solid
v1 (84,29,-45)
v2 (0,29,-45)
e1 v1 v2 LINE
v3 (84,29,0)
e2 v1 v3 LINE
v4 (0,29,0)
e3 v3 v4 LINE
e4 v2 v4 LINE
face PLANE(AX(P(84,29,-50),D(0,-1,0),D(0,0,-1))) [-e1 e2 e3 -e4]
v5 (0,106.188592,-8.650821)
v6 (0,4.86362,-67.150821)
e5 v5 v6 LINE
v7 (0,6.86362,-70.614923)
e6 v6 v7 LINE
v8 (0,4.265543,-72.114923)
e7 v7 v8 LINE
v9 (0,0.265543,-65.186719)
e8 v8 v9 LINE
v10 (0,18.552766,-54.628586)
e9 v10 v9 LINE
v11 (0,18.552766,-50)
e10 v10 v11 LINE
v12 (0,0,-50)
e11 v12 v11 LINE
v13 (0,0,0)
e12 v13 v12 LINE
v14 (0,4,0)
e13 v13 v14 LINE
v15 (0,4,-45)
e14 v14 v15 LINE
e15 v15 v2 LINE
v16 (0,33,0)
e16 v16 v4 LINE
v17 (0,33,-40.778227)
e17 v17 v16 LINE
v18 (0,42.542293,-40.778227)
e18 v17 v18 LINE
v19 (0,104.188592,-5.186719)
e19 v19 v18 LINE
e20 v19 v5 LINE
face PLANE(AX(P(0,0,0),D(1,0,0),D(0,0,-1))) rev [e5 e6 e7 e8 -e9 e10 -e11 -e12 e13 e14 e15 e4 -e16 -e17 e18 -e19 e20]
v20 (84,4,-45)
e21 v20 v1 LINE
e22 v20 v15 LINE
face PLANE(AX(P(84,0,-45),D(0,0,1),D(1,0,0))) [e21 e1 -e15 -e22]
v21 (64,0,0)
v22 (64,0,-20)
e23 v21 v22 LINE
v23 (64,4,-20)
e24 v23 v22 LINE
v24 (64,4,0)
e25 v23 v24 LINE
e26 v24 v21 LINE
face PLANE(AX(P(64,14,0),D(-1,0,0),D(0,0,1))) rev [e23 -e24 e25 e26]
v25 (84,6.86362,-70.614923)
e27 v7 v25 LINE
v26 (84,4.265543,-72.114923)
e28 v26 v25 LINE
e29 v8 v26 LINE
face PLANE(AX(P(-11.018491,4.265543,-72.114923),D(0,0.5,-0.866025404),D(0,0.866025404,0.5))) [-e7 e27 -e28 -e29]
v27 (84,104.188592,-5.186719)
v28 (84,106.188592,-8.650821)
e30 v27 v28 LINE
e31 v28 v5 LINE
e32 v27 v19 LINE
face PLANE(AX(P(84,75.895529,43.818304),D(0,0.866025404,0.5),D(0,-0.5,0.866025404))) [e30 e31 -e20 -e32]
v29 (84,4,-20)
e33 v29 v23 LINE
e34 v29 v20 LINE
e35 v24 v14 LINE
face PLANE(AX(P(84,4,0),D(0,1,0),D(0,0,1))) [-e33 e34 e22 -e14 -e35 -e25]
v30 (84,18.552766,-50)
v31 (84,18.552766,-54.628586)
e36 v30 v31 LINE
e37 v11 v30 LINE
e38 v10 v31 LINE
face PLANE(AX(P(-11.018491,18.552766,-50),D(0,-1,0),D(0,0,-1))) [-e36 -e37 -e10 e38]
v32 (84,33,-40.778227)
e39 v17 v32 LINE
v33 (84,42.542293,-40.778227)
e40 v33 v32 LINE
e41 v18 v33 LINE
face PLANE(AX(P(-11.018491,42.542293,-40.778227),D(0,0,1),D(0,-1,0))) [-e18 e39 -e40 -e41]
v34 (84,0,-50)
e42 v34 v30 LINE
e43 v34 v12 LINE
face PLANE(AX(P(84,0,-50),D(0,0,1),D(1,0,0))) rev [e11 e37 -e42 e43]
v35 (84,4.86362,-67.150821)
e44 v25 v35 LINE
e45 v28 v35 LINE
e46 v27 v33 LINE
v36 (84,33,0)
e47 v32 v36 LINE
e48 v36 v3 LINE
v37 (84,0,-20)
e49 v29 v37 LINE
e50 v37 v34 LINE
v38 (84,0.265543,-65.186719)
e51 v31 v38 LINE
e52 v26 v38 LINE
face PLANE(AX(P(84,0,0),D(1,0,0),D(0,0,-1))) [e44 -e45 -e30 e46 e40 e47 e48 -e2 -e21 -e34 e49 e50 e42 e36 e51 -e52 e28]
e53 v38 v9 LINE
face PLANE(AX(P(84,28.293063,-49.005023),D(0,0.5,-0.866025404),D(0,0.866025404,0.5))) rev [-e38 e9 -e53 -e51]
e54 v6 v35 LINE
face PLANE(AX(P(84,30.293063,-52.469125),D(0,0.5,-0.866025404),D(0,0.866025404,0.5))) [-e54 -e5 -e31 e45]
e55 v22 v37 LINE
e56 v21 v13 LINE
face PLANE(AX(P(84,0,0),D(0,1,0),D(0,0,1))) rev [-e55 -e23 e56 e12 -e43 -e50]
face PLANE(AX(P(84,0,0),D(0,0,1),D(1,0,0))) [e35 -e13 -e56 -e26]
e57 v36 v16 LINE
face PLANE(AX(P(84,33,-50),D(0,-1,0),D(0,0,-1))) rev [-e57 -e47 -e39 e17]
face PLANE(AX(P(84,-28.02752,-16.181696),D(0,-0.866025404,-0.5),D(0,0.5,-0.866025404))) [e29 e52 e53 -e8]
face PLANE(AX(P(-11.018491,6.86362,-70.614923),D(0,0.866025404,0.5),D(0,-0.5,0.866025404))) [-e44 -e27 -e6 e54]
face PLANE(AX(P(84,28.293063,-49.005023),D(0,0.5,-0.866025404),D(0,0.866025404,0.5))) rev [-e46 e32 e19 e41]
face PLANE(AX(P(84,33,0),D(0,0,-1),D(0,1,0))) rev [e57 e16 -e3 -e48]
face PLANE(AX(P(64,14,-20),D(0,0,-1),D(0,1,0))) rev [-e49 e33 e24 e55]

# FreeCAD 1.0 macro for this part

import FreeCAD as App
import Part
import Sketcher
Q = App.Units.Quantity

doc = App.newDocument("Part")
body = doc.addObject("PartDesign::Body", "Body")

sketch1 = doc.addObject("Sketcher::SketchObject", "Sketch")
body.addObject(sketch1)
sketch1.AttachmentSupport = (doc.YZ_Plane, [""])
sketch1.MapMode = "FlatFace"
sketch1.addGeometry(Part.LineSegment(App.Vector(104.188592, -5.186719, 0), App.Vector(33, -46.287472, 0)), False)
sketch1.addGeometry(Part.LineSegment(App.Vector(33, -46.287472, 0), App.Vector(33, 0, 0)), False)
sketch1.addGeometry(Part.LineSegment(App.Vector(33, 0, 0), App.Vector(29, 0, 0)), False)
sketch1.addGeometry(Part.LineSegment(App.Vector(29, 0, 0), App.Vector(29, -45, 0)), False)
sketch1.addGeometry(Part.LineSegment(App.Vector(29, -45, 0), App.Vector(4, -45, 0)), False)
sketch1.addGeometry(Part.LineSegment(App.Vector(4, -45, 0), App.Vector(4, 0, 0)), False)
sketch1.addGeometry(Part.LineSegment(App.Vector(4, 0, 0), App.Vector(0, 0, 0)), False)
sketch1.addGeometry(Part.LineSegment(App.Vector(0, 0, 0), App.Vector(0, -50, 0)), False)
sketch1.addGeometry(Part.LineSegment(App.Vector(0, -50, 0), App.Vector(26.569713, -50, 0)), False)
sketch1.addGeometry(Part.LineSegment(App.Vector(26.569713, -50, 0), App.Vector(0.265543, -65.186719, 0)), False)
sketch1.addGeometry(Part.LineSegment(App.Vector(0.265543, -65.186719, 0), App.Vector(2.265543, -68.650821, 0)), False)
sketch1.addGeometry(Part.LineSegment(App.Vector(2.265543, -68.650821, 0), App.Vector(106.188592, -8.650821, 0)), False)
sketch1.addGeometry(Part.LineSegment(App.Vector(106.188592, -8.650821, 0), App.Vector(104.188592, -5.186719, 0)), False)
sketch1.addConstraint(Sketcher.Constraint("Coincident", 0, 2, 1, 1))
sketch1.addConstraint(Sketcher.Constraint("Coincident", 1, 2, 2, 1))
sketch1.addConstraint(Sketcher.Constraint("Coincident", 2, 2, 3, 1))
sketch1.addConstraint(Sketcher.Constraint("Coincident", 3, 2, 4, 1))
sketch1.addConstraint(Sketcher.Constraint("Coincident", 4, 2, 5, 1))
sketch1.addConstraint(Sketcher.Constraint("Coincident", 5, 2, 6, 1))
sketch1.addConstraint(Sketcher.Constraint("Coincident", 6, 2, 7, 1))
sketch1.addConstraint(Sketcher.Constraint("Coincident", 7, 2, 8, 1))
sketch1.addConstraint(Sketcher.Constraint("Coincident", 8, 2, 9, 1))
sketch1.addConstraint(Sketcher.Constraint("Coincident", 9, 2, 10, 1))
sketch1.addConstraint(Sketcher.Constraint("Coincident", 10, 2, 11, 1))
sketch1.addConstraint(Sketcher.Constraint("Coincident", 11, 2, 12, 1))
sketch1.addConstraint(Sketcher.Constraint("Coincident", 12, 2, 0, 1))
sketch1.addConstraint(Sketcher.Constraint("Vertical", 1))
sketch1.addConstraint(Sketcher.Constraint("Horizontal", 2))
sketch1.addConstraint(Sketcher.Constraint("Vertical", 3))
sketch1.addConstraint(Sketcher.Constraint("Horizontal", 4))
sketch1.addConstraint(Sketcher.Constraint("Vertical", 5))
sketch1.addConstraint(Sketcher.Constraint("Horizontal", 6))
sketch1.addConstraint(Sketcher.Constraint("Vertical", 7))
sketch1.addConstraint(Sketcher.Constraint("Horizontal", 8))
sketch1.addConstraint(Sketcher.Constraint("Coincident", 6, 2, -1, 1))
sketch1.addConstraint(Sketcher.Constraint("PointOnObject", 1, 2, -1))
sketch1.addConstraint(Sketcher.Constraint("Parallel", 0, 9))
sketch1.addConstraint(Sketcher.Constraint("Perpendicular", 9, 10))
sketch1.addConstraint(Sketcher.Constraint("Perpendicular", 10, 11))
sketch1.addConstraint(Sketcher.Constraint("Perpendicular", 11, 12))
sketch1.addConstraint(Sketcher.Constraint("Equal", 2, 6))
sketch1.addConstraint(Sketcher.Constraint("Equal", 10, 12))
sketch1.addConstraint(Sketcher.Constraint("DistanceX", 2, 2, 2, 1, 4.0))
sketch1.addConstraint(Sketcher.Constraint("DistanceX", 4, 2, 4, 1, 25.0))
sketch1.addConstraint(Sketcher.Constraint("DistanceY", 3, 2, 3, 1, 45.0))
sketch1.addConstraint(Sketcher.Constraint("DistanceY", 7, 2, 7, 1, 50.0))
sketch1.addConstraint(Sketcher.Constraint("Angle", 0, Q("-150 deg")))
sketch1.addConstraint(Sketcher.Constraint("Distance", 10, 4.0))
sketch1.addConstraint(Sketcher.Constraint("Distance", 11, 120.0))
sketch1.addConstraint(Sketcher.Constraint("DistanceY", 1, 1, 1, 2, 46.287472))
sketch1.addConstraint(Sketcher.Constraint("Distance", 9, 30.373439))
pad1 = doc.addObject("PartDesign::Pad", "Pad")
body.addObject(pad1)
pad1.Profile = sketch1
pad1.Length = 84

sketch2 = doc.addObject("Sketcher::SketchObject", "Sketch001")
body.addObject(sketch2)
sketch2.AttachmentSupport = (doc.XZ_Plane, [""])
sketch2.MapMode = "FlatFace"
sketch2.addGeometry(Part.LineSegment(App.Vector(64, 0, 0), App.Vector(64, -20, 0)), False)
sketch2.addGeometry(Part.LineSegment(App.Vector(64, -20, 0), App.Vector(84, -20, 0)), False)
sketch2.addGeometry(Part.LineSegment(App.Vector(84, -20, 0), App.Vector(84, 0, 0)), False)
sketch2.addGeometry(Part.LineSegment(App.Vector(84, 0, 0), App.Vector(64, 0, 0)), False)
sketch2.addConstraint(Sketcher.Constraint("Coincident", 0, 2, 1, 1))
sketch2.addConstraint(Sketcher.Constraint("Coincident", 1, 2, 2, 1))
sketch2.addConstraint(Sketcher.Constraint("Coincident", 2, 2, 3, 1))
sketch2.addConstraint(Sketcher.Constraint("Coincident", 3, 2, 0, 1))
sketch2.addConstraint(Sketcher.Constraint("Vertical", 0))
sketch2.addConstraint(Sketcher.Constraint("Horizontal", 1))
sketch2.addConstraint(Sketcher.Constraint("Vertical", 2))
sketch2.addConstraint(Sketcher.Constraint("Horizontal", 3))
sketch2.addConstraint(Sketcher.Constraint("PointOnObject", 2, 2, -1))
sketch2.addConstraint(Sketcher.Constraint("Equal", 3, 0))
sketch2.addConstraint(Sketcher.Constraint("DistanceX", 1, 1, 1, 2, 20.0))
sketch2.addConstraint(Sketcher.Constraint("DistanceX", -1, 1, 0, 2, 64.0))
pocket1 = doc.addObject("PartDesign::Pocket", "Pocket")
body.addObject(pocket1)
pocket1.Profile = sketch2
pocket1.Length = 14

sketch3 = doc.addObject("Sketcher::SketchObject", "Sketch002")
body.addObject(sketch3)
sketch3.AttachmentSupport = (doc.YZ_Plane, [""])
sketch3.MapMode = "FlatFace"
sketch3.AttachmentOffset = App.Placement(App.Vector(0, 0, 84), App.Rotation())
sketch3.addGeometry(Part.LineSegment(App.Vector(2.265543, -68.650821, 0), App.Vector(4.265543, -72.114923, 0)), False)
sketch3.addGeometry(Part.LineSegment(App.Vector(4.265543, -72.114923, 0), App.Vector(6.86362, -70.614923, 0)), False)
sketch3.addGeometry(Part.LineSegment(App.Vector(6.86362, -70.614923, 0), App.Vector(4.86362, -67.150821, 0)), False)
sketch3.addGeometry(Part.LineSegment(App.Vector(4.86362, -67.150821, 0), App.Vector(2.265543, -68.650821, 0)), False)
sketch3.addGeometry(Part.LineSegment(App.Vector(42.542293, -40.778227, 0), App.Vector(33, -40.778227, 0)), False)
sketch3.addGeometry(Part.LineSegment(App.Vector(33, -40.778227, 0), App.Vector(33, -46.287472, 0)), False)
sketch3.addGeometry(Part.LineSegment(App.Vector(33, -46.287472, 0), App.Vector(42.542293, -40.778227, 0)), False)
sketch3.addGeometry(Part.LineSegment(App.Vector(26.569713, -50, 0), App.Vector(18.552766, -50, 0)), False)
sketch3.addGeometry(Part.LineSegment(App.Vector(18.552766, -50, 0), App.Vector(18.552766, -54.628586, 0)), False)
sketch3.addGeometry(Part.LineSegment(App.Vector(18.552766, -54.628586, 0), App.Vector(26.569713, -50, 0)), False)
sketch3.addConstraint(Sketcher.Constraint("Coincident", 0, 2, 1, 1))
sketch3.addConstraint(Sketcher.Constraint("Coincident", 1, 2, 2, 1))
sketch3.addConstraint(Sketcher.Constraint("Coincident", 2, 2, 3, 1))
sketch3.addConstraint(Sketcher.Constraint("Coincident", 3, 2, 0, 1))
sketch3.addConstraint(Sketcher.Constraint("Coincident", 4, 2, 5, 1))
sketch3.addConstraint(Sketcher.Constraint("Coincident", 5, 2, 6, 1))
sketch3.addConstraint(Sketcher.Constraint("Coincident", 6, 2, 4, 1))
sketch3.addConstraint(Sketcher.Constraint("Coincident", 7, 2, 8, 1))
sketch3.addConstraint(Sketcher.Constraint("Coincident", 8, 2, 9, 1))
sketch3.addConstraint(Sketcher.Constraint("Coincident", 9, 2, 7, 1))
sketch3.addConstraint(Sketcher.Constraint("Horizontal", 4))
sketch3.addConstraint(Sketcher.Constraint("Vertical", 5))
sketch3.addConstraint(Sketcher.Constraint("Horizontal", 7))
sketch3.addConstraint(Sketcher.Constraint("Vertical", 8))
sketch3.addConstraint(Sketcher.Constraint("Perpendicular", 0, 1))
sketch3.addConstraint(Sketcher.Constraint("Perpendicular", 1, 2))
sketch3.addConstraint(Sketcher.Constraint("Perpendicular", 2, 3))
sketch3.addConstraint(Sketcher.Constraint("Parallel", 3, 6))
sketch3.addConstraint(Sketcher.Constraint("Parallel", 6, 9))
sketch3.addConstraint(Sketcher.Constraint("Angle", 0, Q("-60 deg")))
sketch3.addConstraint(Sketcher.Constraint("Distance", 0, 4.0))
sketch3.addConstraint(Sketcher.Constraint("Distance", 1, 3.0))
sketch3.addConstraint(Sketcher.Constraint("DistanceX", -1, 1, 4, 2, 33.0))
sketch3.addConstraint(Sketcher.Constraint("DistanceY", 7, 2, -1, 1, 50.0))
sketch3.addConstraint(Sketcher.Constraint("Distance", 6, 11.018491))
sketch3.addConstraint(Sketcher.Constraint("DistanceX", 7, 2, 7, 1, 8.016947))
sketch3.addConstraint(Sketcher.Constraint("DistanceX", -1, 1, 1, 2, 6.86362))
sketch3.addConstraint(Sketcher.Constraint("DistanceY", 2, 2, -1, 1, 67.150821))
sketch3.addConstraint(Sketcher.Constraint("DistanceY", 5, 2, -1, 1, 46.287472))
sketch3.addConstraint(Sketcher.Constraint("DistanceX", 9, 2, 6, 2, 15.97258))
pad2 = doc.addObject("PartDesign::Pad", "Pad001")
body.addObject(pad2)
pad2.Profile = sketch3
pad2.Length = 84
pad2.Reversed = True

doc.recompute()
